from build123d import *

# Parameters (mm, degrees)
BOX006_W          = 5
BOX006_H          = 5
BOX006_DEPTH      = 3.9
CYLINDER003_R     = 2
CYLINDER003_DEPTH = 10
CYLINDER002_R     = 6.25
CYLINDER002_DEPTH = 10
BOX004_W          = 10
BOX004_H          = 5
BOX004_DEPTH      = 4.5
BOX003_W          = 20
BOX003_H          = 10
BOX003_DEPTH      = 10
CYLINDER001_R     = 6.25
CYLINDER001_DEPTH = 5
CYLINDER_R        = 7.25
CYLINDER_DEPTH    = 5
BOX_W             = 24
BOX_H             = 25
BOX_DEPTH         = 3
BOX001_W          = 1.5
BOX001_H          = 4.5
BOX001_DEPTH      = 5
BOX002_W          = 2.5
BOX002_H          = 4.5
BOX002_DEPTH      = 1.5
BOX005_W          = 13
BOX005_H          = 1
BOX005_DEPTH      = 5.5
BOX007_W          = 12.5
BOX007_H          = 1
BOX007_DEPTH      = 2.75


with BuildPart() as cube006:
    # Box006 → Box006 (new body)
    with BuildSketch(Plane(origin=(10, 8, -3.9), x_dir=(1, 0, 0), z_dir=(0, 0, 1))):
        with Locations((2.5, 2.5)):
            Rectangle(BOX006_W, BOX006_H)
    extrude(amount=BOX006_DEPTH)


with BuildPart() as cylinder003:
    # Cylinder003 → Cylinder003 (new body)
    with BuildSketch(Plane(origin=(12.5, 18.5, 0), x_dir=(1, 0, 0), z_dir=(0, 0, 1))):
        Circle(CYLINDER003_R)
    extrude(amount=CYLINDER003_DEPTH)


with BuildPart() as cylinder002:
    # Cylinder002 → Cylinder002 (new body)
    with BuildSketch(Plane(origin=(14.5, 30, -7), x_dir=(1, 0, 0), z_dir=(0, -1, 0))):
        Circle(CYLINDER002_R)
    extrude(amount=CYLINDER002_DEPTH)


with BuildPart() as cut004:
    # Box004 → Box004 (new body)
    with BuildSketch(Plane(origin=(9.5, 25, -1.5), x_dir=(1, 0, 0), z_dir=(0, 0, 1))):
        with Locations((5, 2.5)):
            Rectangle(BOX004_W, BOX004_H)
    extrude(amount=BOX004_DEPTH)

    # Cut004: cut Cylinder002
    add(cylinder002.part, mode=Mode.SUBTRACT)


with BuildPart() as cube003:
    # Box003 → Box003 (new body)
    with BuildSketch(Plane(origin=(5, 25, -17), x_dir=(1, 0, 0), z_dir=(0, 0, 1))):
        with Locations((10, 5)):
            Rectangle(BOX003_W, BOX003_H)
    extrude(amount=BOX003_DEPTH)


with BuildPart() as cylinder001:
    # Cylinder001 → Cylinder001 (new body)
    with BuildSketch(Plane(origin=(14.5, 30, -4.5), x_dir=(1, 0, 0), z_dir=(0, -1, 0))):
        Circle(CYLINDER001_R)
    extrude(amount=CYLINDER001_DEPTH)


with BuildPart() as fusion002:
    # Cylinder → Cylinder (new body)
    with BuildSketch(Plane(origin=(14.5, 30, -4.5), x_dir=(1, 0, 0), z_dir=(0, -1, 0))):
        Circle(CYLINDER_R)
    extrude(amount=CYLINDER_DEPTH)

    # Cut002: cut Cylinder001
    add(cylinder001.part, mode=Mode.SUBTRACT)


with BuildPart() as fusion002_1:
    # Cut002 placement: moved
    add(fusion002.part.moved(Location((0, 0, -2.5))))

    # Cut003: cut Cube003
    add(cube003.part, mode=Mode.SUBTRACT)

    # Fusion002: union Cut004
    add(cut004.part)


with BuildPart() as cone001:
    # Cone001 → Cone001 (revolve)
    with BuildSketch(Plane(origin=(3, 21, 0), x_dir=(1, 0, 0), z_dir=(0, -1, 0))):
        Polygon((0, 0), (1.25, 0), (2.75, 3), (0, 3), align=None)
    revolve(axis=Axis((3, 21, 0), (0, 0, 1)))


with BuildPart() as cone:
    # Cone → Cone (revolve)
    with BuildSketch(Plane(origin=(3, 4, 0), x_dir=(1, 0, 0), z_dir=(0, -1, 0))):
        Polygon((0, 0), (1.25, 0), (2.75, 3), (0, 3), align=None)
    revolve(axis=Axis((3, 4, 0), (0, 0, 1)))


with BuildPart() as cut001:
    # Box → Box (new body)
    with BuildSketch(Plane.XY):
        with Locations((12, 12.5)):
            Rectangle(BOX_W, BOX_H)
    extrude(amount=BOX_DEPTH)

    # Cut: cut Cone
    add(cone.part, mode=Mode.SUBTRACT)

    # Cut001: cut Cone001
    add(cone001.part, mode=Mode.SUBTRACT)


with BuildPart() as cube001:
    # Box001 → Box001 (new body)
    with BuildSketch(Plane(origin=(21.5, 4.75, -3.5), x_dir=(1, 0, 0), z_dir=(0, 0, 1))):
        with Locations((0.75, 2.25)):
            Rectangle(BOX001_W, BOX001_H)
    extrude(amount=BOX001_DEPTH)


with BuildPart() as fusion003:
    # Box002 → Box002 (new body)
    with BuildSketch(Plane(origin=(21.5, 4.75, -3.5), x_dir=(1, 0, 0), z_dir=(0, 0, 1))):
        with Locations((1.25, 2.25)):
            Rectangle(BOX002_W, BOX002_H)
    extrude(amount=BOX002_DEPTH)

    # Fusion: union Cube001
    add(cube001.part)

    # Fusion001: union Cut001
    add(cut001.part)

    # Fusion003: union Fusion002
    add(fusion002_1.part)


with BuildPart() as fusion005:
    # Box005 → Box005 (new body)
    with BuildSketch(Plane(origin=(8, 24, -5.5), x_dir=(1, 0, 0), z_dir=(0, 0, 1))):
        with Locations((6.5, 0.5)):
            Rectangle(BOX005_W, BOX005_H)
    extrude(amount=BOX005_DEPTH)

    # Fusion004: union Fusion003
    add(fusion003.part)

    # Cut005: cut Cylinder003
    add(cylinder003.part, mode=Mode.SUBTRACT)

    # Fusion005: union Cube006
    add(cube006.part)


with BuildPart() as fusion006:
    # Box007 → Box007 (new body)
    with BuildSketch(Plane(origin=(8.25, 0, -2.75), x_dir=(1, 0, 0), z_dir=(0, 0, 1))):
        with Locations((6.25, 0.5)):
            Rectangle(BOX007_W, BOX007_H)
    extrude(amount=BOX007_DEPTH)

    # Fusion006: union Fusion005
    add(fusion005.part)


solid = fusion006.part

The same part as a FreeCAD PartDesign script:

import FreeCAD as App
import Part
import Sketcher

V = App.Vector


def add_polygon(sketch, points):
    """Adds a closed chain of lines whose ends are joined by coincident constraints."""
    first, n = sketch.GeometryCount, len(points)
    for a, b in zip(points, points[1:] + points[:1]):
        sketch.addGeometry(Part.LineSegment(App.Vector(*a, 0), App.Vector(*b, 0)), False)
    for i in range(n):
        sketch.addConstraint(Sketcher.Constraint("Coincident", first + i, 2, first + (i + 1) % n, 1))

doc = App.newDocument("Part")
params = doc.addObject("Spreadsheet::Sheet", "Params")
for row, (alias, value) in enumerate([
    ("sketch1_width", "5 mm"),
    ("pad1_length", "3.9 mm"),
    ("sketch2_diameter", "4 mm"),
    ("pad2_length", "10 mm"),
    ("sketch3_diameter", "12.5 mm"),
    ("pad3_length", "10 mm"),
    ("sketch4_width", "10 mm"),
    ("sketch4_height", "5 mm"),
    ("pad4_length", "4.5 mm"),
    ("sketch5_width", "20 mm"),
    ("sketch5_height", "10 mm"),
    ("pad5_length", "10 mm"),
    ("sketch6_diameter", "12.5 mm"),
    ("pad6_length", "5 mm"),
    ("sketch7_diameter", "14.5 mm"),
    ("pad7_length", "5 mm"),
    ("sketch8_height", "3 mm"),
    ("sketch8_width", "1.25 mm"),
    ("sketch8_width2", "2.75 mm"),
    ("revolution_angle", "360 deg"),
    ("sketch9_height", "3 mm"),
    ("sketch9_width", "1.25 mm"),
    ("sketch9_width2", "2.75 mm"),
    ("revolution2_angle", "360 deg"),
    ("sketch10_width", "24 mm"),
    ("sketch10_height", "25 mm"),
    ("pad8_length", "3 mm"),
    ("sketch11_width", "1.5 mm"),
    ("sketch11_height", "4.5 mm"),
    ("pad9_length", "5 mm"),
    ("sketch12_width", "2.5 mm"),
    ("sketch12_height", "4.5 mm"),
    ("pad10_length", "1.5 mm"),
    ("sketch13_width", "13 mm"),
    ("sketch13_height", "1 mm"),
    ("pad11_length", "5.5 mm"),
    ("sketch14_height", "1 mm"),
    ("sketch14_width", "12.5 mm"),
    ("pad12_length", "2.75 mm"),
], start=1):
    params.set(f"A{row}", alias)
    params.set(f"B{row}", "=" + value)
    params.setAlias(f"B{row}", alias)

body = doc.addObject("PartDesign::Body", "Body")

# Sketch on XY plane
sketch1 = doc.addObject("Sketcher::SketchObject", "Sketch")
body.addObject(sketch1)
sketch1.AttachmentSupport = (doc.XY_Plane, [""])
sketch1.MapMode = "FlatFace"
sketch1.AttachmentOffset = App.Placement(V(0, 0, -3.9), App.Rotation())
add_polygon(sketch1, [(10, 13), (10, 8), (15, 8), (15, 13)])  # lines 0-3
sketch1.addConstraint([
    Sketcher.Constraint("Vertical", 0),
    Sketcher.Constraint("Horizontal", 1),
    Sketcher.Constraint("Vertical", 2),
    Sketcher.Constraint("Horizontal", 3),
    Sketcher.Constraint("Equal", 3, 0),
    Sketcher.Constraint("DistanceX", 1, 1, 1, 2, 5.0),
    Sketcher.Constraint("DistanceX", -1, 1, 0, 2, 10.0),
    Sketcher.Constraint("DistanceY", -1, 1, 0, 2, 8.0),
])
sketch1.setExpression("Constraints[9]", "Params.sketch1_width")
pad1 = doc.addObject("PartDesign::Pad", "Pad")
body.addObject(pad1)
pad1.Profile = sketch1
pad1.setExpression("Length", "Params.pad1_length")
body2 = doc.addObject("PartDesign::Body", "Body001")

# Sketch on XY plane
sketch2 = doc.addObject("Sketcher::SketchObject", "Sketch001")
body2.addObject(sketch2)
sketch2.AttachmentSupport = (doc.getObject("XY_Plane001"), [""])
sketch2.MapMode = "FlatFace"
sketch2.addGeometry(Part.Circle(V(12.5, 18.5, 0), V(0, 0, 1), 2), False)
sketch2.addConstraint([
    Sketcher.Constraint("Diameter", 0, 4.0),
    Sketcher.Constraint("DistanceX", -1, 1, 0, 3, 12.5),
    Sketcher.Constraint("DistanceY", -1, 1, 0, 3, 18.5),
])
sketch2.setExpression("Constraints[0]", "Params.sketch2_diameter")
pad2 = doc.addObject("PartDesign::Pad", "Pad001")
body2.addObject(pad2)
pad2.Profile = sketch2
pad2.setExpression("Length", "Params.pad2_length")
body3 = doc.addObject("PartDesign::Body", "Body002")

# Sketch on XZ plane
sketch3 = doc.addObject("Sketcher::SketchObject", "Sketch002")
body3.addObject(sketch3)
sketch3.AttachmentSupport = (doc.getObject("XZ_Plane002"), [""])
sketch3.MapMode = "FlatFace"
sketch3.AttachmentOffset = App.Placement(V(0, 0, -30), App.Rotation())
sketch3.addGeometry(Part.Circle(V(14, -7, 0), V(0, 0, 1), 6), False)
sketch3.addConstraint([
    Sketcher.Constraint("Diameter", 0, 12.5),
    Sketcher.Constraint("DistanceY", 0, 3, -1, 1, 7.0),
    Sketcher.Constraint("DistanceX", -1, 1, 0, 3, 14.5),
])
sketch3.setExpression("Constraints[0]", "Params.sketch3_diameter")
pad3 = doc.addObject("PartDesign::Pad", "Pad002")
body3.addObject(pad3)
pad3.Profile = sketch3
pad3.setExpression("Length", "Params.pad3_length")
body4 = doc.addObject("PartDesign::Body", "Body003")

# Sketch on XY plane
sketch4 = doc.addObject("Sketcher::SketchObject", "Sketch003")
body4.addObject(sketch4)
sketch4.AttachmentSupport = (doc.getObject("XY_Plane003"), [""])
sketch4.MapMode = "FlatFace"
sketch4.AttachmentOffset = App.Placement(V(0, 0, -1.5), App.Rotation())
add_polygon(sketch4, [(10, 30), (10, 25), (20, 25), (20, 30)])  # lines 0-3
sketch4.addConstraint([
    Sketcher.Constraint("Vertical", 0),
    Sketcher.Constraint("Horizontal", 1),
    Sketcher.Constraint("Vertical", 2),
    Sketcher.Constraint("Horizontal", 3),
    Sketcher.Constraint("DistanceX", 1, 1, 1, 2, 10.0),
    Sketcher.Constraint("DistanceY", 0, 2, 0, 1, 5.0),
    Sketcher.Constraint("DistanceY", -1, 1, 0, 2, 25.0),
    Sketcher.Constraint("DistanceX", -1, 1, 0, 2, 9.5),
])
sketch4.setExpression("Constraints[8]", "Params.sketch4_width")
sketch4.setExpression("Constraints[9]", "Params.sketch4_height")
pad4 = doc.addObject("PartDesign::Pad", "Pad003")
body4.addObject(pad4)
pad4.Profile = sketch4
pad4.setExpression("Length", "Params.pad4_length")
doc.recompute()

boolean = doc.addObject("PartDesign::Boolean", "Boolean")
body4.addObject(boolean)
boolean.Type = "Cut"
boolean.addObjects([body3])
body5 = doc.addObject("PartDesign::Body", "Body004")

# Sketch on XY plane
sketch5 = doc.addObject("Sketcher::SketchObject", "Sketch004")
body5.addObject(sketch5)
sketch5.AttachmentSupport = (doc.getObject("XY_Plane004"), [""])
sketch5.MapMode = "FlatFace"
sketch5.AttachmentOffset = App.Placement(V(0, 0, -17), App.Rotation())
add_polygon(sketch5, [(5, 35), (5, 25), (25, 25), (25, 35)])  # lines 0-3
sketch5.addConstraint([
    Sketcher.Constraint("Vertical", 0),
    Sketcher.Constraint("Horizontal", 1),
    Sketcher.Constraint("Vertical", 2),
    Sketcher.Constraint("Horizontal", 3),
    Sketcher.Constraint("DistanceX", 1, 1, 1, 2, 20.0),
    Sketcher.Constraint("DistanceY", 0, 2, 0, 1, 10.0),
    Sketcher.Constraint("DistanceX", -1, 1, 0, 2, 5.0),
    Sketcher.Constraint("DistanceY", -1, 1, 0, 2, 25.0),
])
sketch5.setExpression("Constraints[8]", "Params.sketch5_width")
sketch5.setExpression("Constraints[9]", "Params.sketch5_height")
pad5 = doc.addObject("PartDesign::Pad", "Pad004")
body5.addObject(pad5)
pad5.Profile = sketch5
pad5.setExpression("Length", "Params.pad5_length")
body6 = doc.addObject("PartDesign::Body", "Body005")

# Sketch on XZ plane
sketch6 = doc.addObject("Sketcher::SketchObject", "Sketch005")
body6.addObject(sketch6)
sketch6.AttachmentSupport = (doc.getObject("XZ_Plane005"), [""])
sketch6.MapMode = "FlatFace"
sketch6.AttachmentOffset = App.Placement(V(0, 0, -30), App.Rotation())
sketch6.addGeometry(Part.Circle(V(14, -4, 0), V(0, 0, 1), 6), False)
sketch6.addConstraint([
    Sketcher.Constraint("Diameter", 0, 12.5),
    Sketcher.Constraint("DistanceX", -1, 1, 0, 3, 14.5),
    Sketcher.Constraint("DistanceY", 0, 3, -1, 1, 4.5),
])
sketch6.setExpression("Constraints[0]", "Params.sketch6_diameter")
pad6 = doc.addObject("PartDesign::Pad", "Pad005")
body6.addObject(pad6)
pad6.Profile = sketch6
pad6.setExpression("Length", "Params.pad6_length")
body7 = doc.addObject("PartDesign::Body", "Body006")

# Sketch on XZ plane
sketch7 = doc.addObject("Sketcher::SketchObject", "Sketch006")
body7.addObject(sketch7)
sketch7.AttachmentSupport = (doc.getObject("XZ_Plane006"), [""])
sketch7.MapMode = "FlatFace"
sketch7.AttachmentOffset = App.Placement(V(0, 0, -30), App.Rotation())
sketch7.addGeometry(Part.Circle(V(14, -4, 0), V(0, 0, 1), 7), False)
sketch7.addConstraint([
    Sketcher.Constraint("Diameter", 0, 14.5),
    Sketcher.Constraint("DistanceX", -1, 1, 0, 3, 14.5),
    Sketcher.Constraint("DistanceY", 0, 3, -1, 1, 4.5),
])
sketch7.setExpression("Constraints[0]", "Params.sketch7_diameter")
pad7 = doc.addObject("PartDesign::Pad", "Pad006")
body7.addObject(pad7)
pad7.Profile = sketch7
pad7.setExpression("Length", "Params.pad7_length")
doc.recompute()

boolean2 = doc.addObject("PartDesign::Boolean", "Boolean001")
body7.addObject(boolean2)
boolean2.Type = "Cut"
boolean2.addObjects([body6])
body8 = doc.addObject("PartDesign::Body", "Body007")
doc.recompute()

body7.Placement = App.Placement(V(0, 0, -2.5), App.Rotation(V(0, 0, 1), 0))
boolean3 = doc.addObject("PartDesign::Boolean", "Boolean002")
body8.addObject(boolean3)
boolean3.Type = "Fuse"
boolean3.addObjects([body7])
doc.recompute()

boolean4 = doc.addObject("PartDesign::Boolean", "Boolean003")
body8.addObject(boolean4)
boolean4.Type = "Cut"
boolean4.addObjects([body5])
doc.recompute()

boolean5 = doc.addObject("PartDesign::Boolean", "Boolean004")
body8.addObject(boolean5)
boolean5.Type = "Fuse"
boolean5.addObjects([body4])
body9 = doc.addObject("PartDesign::Body", "Body008")

# Sketch on XZ plane
sketch8 = doc.addObject("Sketcher::SketchObject", "Sketch007")
body9.addObject(sketch8)
sketch8.AttachmentSupport = (doc.getObject("XZ_Plane008"), [""])
sketch8.MapMode = "FlatFace"
sketch8.AttachmentOffset = App.Placement(V(0, 0, -21), App.Rotation())
add_polygon(sketch8, [(3, 0), (4.2, 0), (5.8, 3), (3, 3)])  # lines 0-3
sketch8.addGeometry(Part.LineSegment(V(3, 0, 0), V(3, 3, 0)), True)  # axis
sketch8.addConstraint([
    Sketcher.Constraint("Horizontal", 0),
    Sketcher.Constraint("Horizontal", 2),
    Sketcher.Constraint("Vertical", 3),
    Sketcher.Constraint("Vertical", 4),
    Sketcher.Constraint("Coincident", 4, 1, 3, 2),
    Sketcher.Constraint("PointOnObject", 0, 2, -1),
    Sketcher.Constraint("Horizontal", 1, 2, 4, 2),
    Sketcher.Constraint("DistanceY", 3, 2, 3, 1, 3.0),
    Sketcher.Constraint("DistanceX", -1, 1, 2, 2, 3.0),
    Sketcher.Constraint("DistanceX", 0, 1, 0, 2, 1.25),
    Sketcher.Constraint("DistanceX", 2, 2, 2, 1, 2.75),
])
sketch8.setExpression("Constraints[11]", "Params.sketch8_height")
sketch8.setExpression("Constraints[13]", "Params.sketch8_width")
sketch8.setExpression("Constraints[14]", "Params.sketch8_width2")
revolution = doc.addObject("PartDesign::Revolution", "Revolution")
body9.addObject(revolution)
revolution.Profile = sketch8
revolution.ReferenceAxis = (sketch8, ["Axis0"])
revolution.setExpression("Angle", "Params.revolution_angle")
body10 = doc.addObject("PartDesign::Body", "Body009")

# Sketch on XZ plane
sketch9 = doc.addObject("Sketcher::SketchObject", "Sketch008")
body10.addObject(sketch9)
sketch9.AttachmentSupport = (doc.getObject("XZ_Plane009"), [""])
sketch9.MapMode = "FlatFace"
sketch9.AttachmentOffset = App.Placement(V(0, 0, -4), App.Rotation())
add_polygon(sketch9, [(3, 0), (4.2, 0), (5.8, 3), (3, 3)])  # lines 0-3
sketch9.addGeometry(Part.LineSegment(V(3, 0, 0), V(3, 3, 0)), True)  # axis
sketch9.addConstraint([
    Sketcher.Constraint("Horizontal", 0),
    Sketcher.Constraint("Horizontal", 2),
    Sketcher.Constraint("Vertical", 3),
    Sketcher.Constraint("Vertical", 4),
    Sketcher.Constraint("Coincident", 4, 1, 3, 2),
    Sketcher.Constraint("PointOnObject", 0, 2, -1),
    Sketcher.Constraint("Horizontal", 1, 2, 4, 2),
    Sketcher.Constraint("DistanceY", 3, 2, 3, 1, 3.0),
    Sketcher.Constraint("DistanceX", -1, 1, 2, 2, 3.0),
    Sketcher.Constraint("DistanceX", 0, 1, 0, 2, 1.25),
    Sketcher.Constraint("DistanceX", 2, 2, 2, 1, 2.75),
])
sketch9.setExpression("Constraints[11]", "Params.sketch9_height")
sketch9.setExpression("Constraints[13]", "Params.sketch9_width")
sketch9.setExpression("Constraints[14]", "Params.sketch9_width2")
revolution2 = doc.addObject("PartDesign::Revolution", "Revolution001")
body10.addObject(revolution2)
revolution2.Profile = sketch9
revolution2.ReferenceAxis = (sketch9, ["Axis0"])
revolution2.setExpression("Angle", "Params.revolution2_angle")
body11 = doc.addObject("PartDesign::Body", "Body010")

# Sketch on XY plane
sketch10 = doc.addObject("Sketcher::SketchObject", "Sketch009")
body11.addObject(sketch10)
sketch10.AttachmentSupport = (doc.getObject("XY_Plane010"), [""])
sketch10.MapMode = "FlatFace"
add_polygon(sketch10, [(0, 25), (0, 0), (24, 0), (24, 25)])  # lines 0-3
sketch10.addConstraint([
    Sketcher.Constraint("Vertical", 0),
    Sketcher.Constraint("Horizontal", 1),
    Sketcher.Constraint("Vertical", 2),
    Sketcher.Constraint("Horizontal", 3),
    Sketcher.Constraint("Coincident", 0, 2, -1, 1),
    Sketcher.Constraint("DistanceX", 1, 1, 1, 2, 24.0),
    Sketcher.Constraint("DistanceY", 0, 2, 0, 1, 25.0),
])
sketch10.setExpression("Constraints[9]", "Params.sketch10_width")
sketch10.setExpression("Constraints[10]", "Params.sketch10_height")
pad8 = doc.addObject("PartDesign::Pad", "Pad007")
body11.addObject(pad8)
pad8.Profile = sketch10
pad8.setExpression("Length", "Params.pad8_length")
doc.recompute()

boolean6 = doc.addObject("PartDesign::Boolean", "Boolean005")
body11.addObject(boolean6)
boolean6.Type = "Cut"
boolean6.addObjects([body10])
doc.recompute()

boolean7 = doc.addObject("PartDesign::Boolean", "Boolean006")
body11.addObject(boolean7)
boolean7.Type = "Cut"
boolean7.addObjects([body9])
body12 = doc.addObject("PartDesign::Body", "Body011")

# Sketch on XY plane
sketch11 = doc.addObject("Sketcher::SketchObject", "Sketch010")
body12.addObject(sketch11)
sketch11.AttachmentSupport = (doc.getObject("XY_Plane011"), [""])
sketch11.MapMode = "FlatFace"
sketch11.AttachmentOffset = App.Placement(V(0, 0, -3.5), App.Rotation())
add_polygon(sketch11, [(21.5, 9.2), (21.5, 4.8), (23, 4.8), (23, 9.2)])  # lines 0-3
sketch11.addConstraint([
    Sketcher.Constraint("Vertical", 0),
    Sketcher.Constraint("Horizontal", 1),
    Sketcher.Constraint("Vertical", 2),
    Sketcher.Constraint("Horizontal", 3),
    Sketcher.Constraint("DistanceX", 1, 1, 1, 2, 1.5),
    Sketcher.Constraint("DistanceY", 0, 2, 0, 1, 4.5),
    Sketcher.Constraint("DistanceX", -1, 1, 1, 2, 23.0),
    Sketcher.Constraint("DistanceY", -1, 1, 0, 2, 4.75),
])
sketch11.setExpression("Constraints[8]", "Params.sketch11_width")
sketch11.setExpression("Constraints[9]", "Params.sketch11_height")
pad9 = doc.addObject("PartDesign::Pad", "Pad008")
body12.addObject(pad9)
pad9.Profile = sketch11
pad9.setExpression("Length", "Params.pad9_length")
body13 = doc.addObject("PartDesign::Body", "Body012")

# Sketch on XY plane
sketch12 = doc.addObject("Sketcher::SketchObject", "Sketch011")
body13.addObject(sketch12)
sketch12.AttachmentSupport = (doc.getObject("XY_Plane012"), [""])
sketch12.MapMode = "FlatFace"
sketch12.AttachmentOffset = App.Placement(V(0, 0, -3.5), App.Rotation())
add_polygon(sketch12, [(21.5, 9.2), (21.5, 4.8), (24, 4.8), (24, 9.2)])  # lines 0-3
sketch12.addConstraint([
    Sketcher.Constraint("Vertical", 0),
    Sketcher.Constraint("Horizontal", 1),
    Sketcher.Constraint("Vertical", 2),
    Sketcher.Constraint("Horizontal", 3),
    Sketcher.Constraint("DistanceX", 1, 1, 1, 2, 2.5),
    Sketcher.Constraint("DistanceY", 0, 2, 0, 1, 4.5),
    Sketcher.Constraint("DistanceX", -1, 1, 1, 2, 24.0),
    Sketcher.Constraint("DistanceY", -1, 1, 0, 2, 4.75),
])
sketch12.setExpression("Constraints[8]", "Params.sketch12_width")
sketch12.setExpression("Constraints[9]", "Params.sketch12_height")
pad10 = doc.addObject("PartDesign::Pad", "Pad009")
body13.addObject(pad10)
pad10.Profile = sketch12
pad10.setExpression("Length", "Params.pad10_length")
doc.recompute()

boolean8 = doc.addObject("PartDesign::Boolean", "Boolean007")
body13.addObject(boolean8)
boolean8.Type = "Fuse"
boolean8.addObjects([body12])
doc.recompute()

boolean9 = doc.addObject("PartDesign::Boolean", "Boolean008")
body13.addObject(boolean9)
boolean9.Type = "Fuse"
boolean9.addObjects([body11])
doc.recompute()

boolean10 = doc.addObject("PartDesign::Boolean", "Boolean009")
body13.addObject(boolean10)
boolean10.Type = "Fuse"
boolean10.addObjects([body8])
body14 = doc.addObject("PartDesign::Body", "Body013")

# Sketch on XY plane
sketch13 = doc.addObject("Sketcher::SketchObject", "Sketch012")
body14.addObject(sketch13)
sketch13.AttachmentSupport = (doc.getObject("XY_Plane013"), [""])
sketch13.MapMode = "FlatFace"
sketch13.AttachmentOffset = App.Placement(V(0, 0, -5.5), App.Rotation())
add_polygon(sketch13, [(8, 25), (8, 24), (21, 24), (21, 25)])  # lines 0-3
sketch13.addConstraint([
    Sketcher.Constraint("Vertical", 0),
    Sketcher.Constraint("Horizontal", 1),
    Sketcher.Constraint("Vertical", 2),
    Sketcher.Constraint("Horizontal", 3),
    Sketcher.Constraint("DistanceX", 1, 1, 1, 2, 13.0),
    Sketcher.Constraint("DistanceY", 0, 2, 0, 1, 1.0),
    Sketcher.Constraint("DistanceX", -1, 1, 0, 2, 8.0),
    Sketcher.Constraint("DistanceY", -1, 1, 0, 2, 24.0),
])
sketch13.setExpression("Constraints[8]", "Params.sketch13_width")
sketch13.setExpression("Constraints[9]", "Params.sketch13_height")
pad11 = doc.addObject("PartDesign::Pad", "Pad010")
body14.addObject(pad11)
pad11.Profile = sketch13
pad11.setExpression("Length", "Params.pad11_length")
doc.recompute()

boolean11 = doc.addObject("PartDesign::Boolean", "Boolean010")
body14.addObject(boolean11)
boolean11.Type = "Fuse"
boolean11.addObjects([body13])
doc.recompute()

boolean12 = doc.addObject("PartDesign::Boolean", "Boolean011")
body14.addObject(boolean12)
boolean12.Type = "Cut"
boolean12.addObjects([body2])
doc.recompute()

boolean13 = doc.addObject("PartDesign::Boolean", "Boolean012")
body14.addObject(boolean13)
boolean13.Type = "Fuse"
boolean13.addObjects([body])
body15 = doc.addObject("PartDesign::Body", "Body014")

# Sketch on XY plane
sketch14 = doc.addObject("Sketcher::SketchObject", "Sketch013")
body15.addObject(sketch14)
sketch14.AttachmentSupport = (doc.getObject("XY_Plane014"), [""])
sketch14.MapMode = "FlatFace"
sketch14.AttachmentOffset = App.Placement(V(0, 0, -2.75), App.Rotation())
add_polygon(sketch14, [(8.2, 1), (8.2, 0), (20.8, 0), (20.8, 1)])  # lines 0-3
sketch14.addConstraint([
    Sketcher.Constraint("Vertical", 0),
    Sketcher.Constraint("Horizontal", 1),
    Sketcher.Constraint("Vertical", 2),
    Sketcher.Constraint("Horizontal", 3),
    Sketcher.Constraint("PointOnObject", 0, 2, -1),
    Sketcher.Constraint("DistanceY", 0, 2, 0, 1, 1.0),
    Sketcher.Constraint("DistanceX", 1, 1, 1, 2, 12.5),
    Sketcher.Constraint("DistanceX", -1, 1, 0, 2, 8.25),
])
sketch14.setExpression("Constraints[9]", "Params.sketch14_height")
sketch14.setExpression("Constraints[10]", "Params.sketch14_width")
pad12 = doc.addObject("PartDesign::Pad", "Pad011")
body15.addObject(pad12)
pad12.Profile = sketch14
pad12.setExpression("Length", "Params.pad12_length")
doc.recompute()

boolean14 = doc.addObject("PartDesign::Boolean", "Boolean013")
body15.addObject(boolean14)
boolean14.Type = "Fuse"
boolean14.addObjects([body14])

doc.recompute()
